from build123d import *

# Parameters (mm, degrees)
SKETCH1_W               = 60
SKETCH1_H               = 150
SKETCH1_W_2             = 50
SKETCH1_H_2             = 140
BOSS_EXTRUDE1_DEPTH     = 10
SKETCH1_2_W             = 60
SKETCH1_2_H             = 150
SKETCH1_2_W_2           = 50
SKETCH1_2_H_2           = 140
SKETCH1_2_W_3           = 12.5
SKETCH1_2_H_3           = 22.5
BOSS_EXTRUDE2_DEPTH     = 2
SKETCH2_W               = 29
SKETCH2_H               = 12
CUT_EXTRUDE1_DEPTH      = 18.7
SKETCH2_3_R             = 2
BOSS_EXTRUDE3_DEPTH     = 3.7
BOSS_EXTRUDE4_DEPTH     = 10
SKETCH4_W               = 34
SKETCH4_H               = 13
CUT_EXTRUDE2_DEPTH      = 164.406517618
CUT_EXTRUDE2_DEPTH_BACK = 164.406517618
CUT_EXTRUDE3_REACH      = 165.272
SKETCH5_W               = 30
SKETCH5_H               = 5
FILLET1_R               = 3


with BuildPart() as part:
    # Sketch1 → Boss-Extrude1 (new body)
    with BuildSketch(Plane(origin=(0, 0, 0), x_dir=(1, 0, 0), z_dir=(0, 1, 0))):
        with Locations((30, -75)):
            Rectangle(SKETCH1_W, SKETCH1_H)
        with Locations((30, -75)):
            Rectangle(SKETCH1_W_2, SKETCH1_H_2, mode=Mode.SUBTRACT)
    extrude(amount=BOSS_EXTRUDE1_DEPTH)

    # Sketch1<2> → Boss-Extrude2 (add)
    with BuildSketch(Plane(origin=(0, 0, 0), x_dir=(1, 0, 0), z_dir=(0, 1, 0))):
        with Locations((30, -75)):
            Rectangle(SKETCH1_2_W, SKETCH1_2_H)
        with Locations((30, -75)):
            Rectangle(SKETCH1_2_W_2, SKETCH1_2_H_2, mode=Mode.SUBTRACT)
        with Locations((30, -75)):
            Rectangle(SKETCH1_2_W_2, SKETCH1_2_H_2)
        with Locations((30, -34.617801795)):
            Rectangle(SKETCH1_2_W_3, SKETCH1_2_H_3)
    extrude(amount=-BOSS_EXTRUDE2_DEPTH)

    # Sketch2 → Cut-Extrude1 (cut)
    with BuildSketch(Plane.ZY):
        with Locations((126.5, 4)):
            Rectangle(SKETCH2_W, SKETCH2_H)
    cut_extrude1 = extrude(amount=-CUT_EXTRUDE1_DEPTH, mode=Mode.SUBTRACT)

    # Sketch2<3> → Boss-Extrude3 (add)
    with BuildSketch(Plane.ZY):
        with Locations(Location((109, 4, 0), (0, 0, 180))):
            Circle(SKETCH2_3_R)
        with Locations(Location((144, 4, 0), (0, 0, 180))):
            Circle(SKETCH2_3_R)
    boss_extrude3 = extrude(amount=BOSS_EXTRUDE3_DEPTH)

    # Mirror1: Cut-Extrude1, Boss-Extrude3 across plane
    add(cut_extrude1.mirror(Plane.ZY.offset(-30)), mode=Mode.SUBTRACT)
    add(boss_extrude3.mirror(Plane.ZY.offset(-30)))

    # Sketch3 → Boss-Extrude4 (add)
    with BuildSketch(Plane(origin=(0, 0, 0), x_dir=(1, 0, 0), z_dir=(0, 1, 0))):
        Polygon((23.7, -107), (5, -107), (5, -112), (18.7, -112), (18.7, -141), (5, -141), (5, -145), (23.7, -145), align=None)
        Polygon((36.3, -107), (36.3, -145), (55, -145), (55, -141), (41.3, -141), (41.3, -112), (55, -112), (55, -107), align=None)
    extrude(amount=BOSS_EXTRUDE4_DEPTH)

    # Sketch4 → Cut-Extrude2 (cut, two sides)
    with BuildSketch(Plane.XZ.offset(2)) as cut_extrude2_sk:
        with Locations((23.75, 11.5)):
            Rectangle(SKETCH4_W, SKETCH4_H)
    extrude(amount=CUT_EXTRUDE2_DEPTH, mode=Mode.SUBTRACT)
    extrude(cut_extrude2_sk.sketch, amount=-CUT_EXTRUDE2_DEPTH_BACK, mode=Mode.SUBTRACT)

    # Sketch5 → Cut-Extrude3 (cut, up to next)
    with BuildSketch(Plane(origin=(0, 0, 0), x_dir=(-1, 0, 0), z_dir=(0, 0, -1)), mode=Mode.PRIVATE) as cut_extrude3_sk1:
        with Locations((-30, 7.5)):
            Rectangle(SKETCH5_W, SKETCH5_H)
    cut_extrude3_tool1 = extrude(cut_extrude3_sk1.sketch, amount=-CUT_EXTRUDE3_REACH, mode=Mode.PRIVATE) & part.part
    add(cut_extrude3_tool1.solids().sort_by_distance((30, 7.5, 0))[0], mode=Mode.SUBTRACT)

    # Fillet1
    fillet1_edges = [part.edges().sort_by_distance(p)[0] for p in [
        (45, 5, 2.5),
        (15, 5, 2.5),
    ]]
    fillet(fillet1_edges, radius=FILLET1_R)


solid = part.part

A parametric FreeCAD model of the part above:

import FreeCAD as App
import Part
import Sketcher
Q = App.Units.Quantity


def edges_at(feature, points):
    """Names of the edges that pass closest to the given points."""
    edges = feature.Shape.Edges
    near = lambda p: min(range(len(edges)), key=lambda i: edges[i].distToShape(Part.Vertex(*p))[0])
    return sorted({f"Edge{near(p) + 1}" for p in points})

doc = App.newDocument("Part")
body = doc.addObject("PartDesign::Body", "Body")

# Sketch on XZ plane
sketch1 = body.newObject("Sketcher::SketchObject", "Sketch")
sketch1.AttachmentSupport = (doc.getObject("XZ_Plane"), [""])
sketch1.MapMode = "FlatFace"
sketch1.addGeometry([
    Part.LineSegment(App.Vector(0, 0, 0), App.Vector(0, 150, 0)),  # 0
    Part.LineSegment(App.Vector(0, 150, 0), App.Vector(60, 150, 0)),  # 1
    Part.LineSegment(App.Vector(60, 150, 0), App.Vector(60, 0, 0)),  # 2
    Part.LineSegment(App.Vector(60, 0, 0), App.Vector(0, 0, 0)),  # 3
    Part.LineSegment(App.Vector(55, 145, 0), App.Vector(5, 145, 0)),  # 4
    Part.LineSegment(App.Vector(5, 145, 0), App.Vector(5, 5, 0)),  # 5
    Part.LineSegment(App.Vector(5, 5, 0), App.Vector(55, 5, 0)),  # 6
    Part.LineSegment(App.Vector(55, 5, 0), App.Vector(55, 145, 0)),  # 7
], False)
sketch1.addConstraint([
    Sketcher.Constraint("Coincident", 0, 2, 1, 1),
    Sketcher.Constraint("Coincident", 1, 2, 2, 1),
    Sketcher.Constraint("Coincident", 2, 2, 3, 1),
    Sketcher.Constraint("Coincident", 3, 2, 0, 1),
    Sketcher.Constraint("Coincident", 4, 2, 5, 1),
    Sketcher.Constraint("Coincident", 5, 2, 6, 1),
    Sketcher.Constraint("Coincident", 6, 2, 7, 1),
    Sketcher.Constraint("Coincident", 7, 2, 4, 1),
    Sketcher.Constraint("Vertical", 0),
    Sketcher.Constraint("Horizontal", 1),
    Sketcher.Constraint("Vertical", 2),
    Sketcher.Constraint("Horizontal", 3),
    Sketcher.Constraint("Horizontal", 4),
    Sketcher.Constraint("Vertical", 5),
    Sketcher.Constraint("Horizontal", 6),
    Sketcher.Constraint("Vertical", 7),
    Sketcher.Constraint("Coincident", 3, 2, -1, 1),
    Sketcher.Constraint("DistanceX", 1, 1, 1, 2, Q("60 mm")),
    Sketcher.Constraint("DistanceX", 4, 2, 4, 1, Q("50 mm")),
    Sketcher.Constraint("DistanceY", 0, 1, 0, 2, Q("150 mm")),
    Sketcher.Constraint("DistanceY", 5, 2, 5, 1, Q("140 mm")),
    Sketcher.Constraint("DistanceX", -1, 1, 4, 2, Q("5 mm")),
    Sketcher.Constraint("DistanceY", -1, 1, 4, 2, Q("145 mm")),
])
pad1 = body.newObject("PartDesign::Pad", "Pad")
pad1.Profile = sketch1
pad1.Length = 10
pad1.Reversed = True

# Sketch on XZ plane
sketch2 = body.newObject("Sketcher::SketchObject", "Sketch001")
sketch2.AttachmentSupport = (doc.getObject("XZ_Plane"), [""])
sketch2.MapMode = "FlatFace"
sketch2.addGeometry([
    Part.LineSegment(App.Vector(0, 0, 0), App.Vector(0, 150, 0)),
    Part.LineSegment(App.Vector(0, 150, 0), App.Vector(60, 150, 0)),
    Part.LineSegment(App.Vector(60, 150, 0), App.Vector(60, 0, 0)),
    Part.LineSegment(App.Vector(60, 0, 0), App.Vector(0, 0, 0)),
], False)
sketch2.addConstraint([
    Sketcher.Constraint("Coincident", 0, 2, 1, 1),
    Sketcher.Constraint("Coincident", 1, 2, 2, 1),
    Sketcher.Constraint("Coincident", 2, 2, 3, 1),
    Sketcher.Constraint("Coincident", 3, 2, 0, 1),
    Sketcher.Constraint("Vertical", 0),
    Sketcher.Constraint("Horizontal", 1),
    Sketcher.Constraint("Vertical", 2),
    Sketcher.Constraint("Horizontal", 3),
    Sketcher.Constraint("Coincident", 3, 2, -1, 1),
    Sketcher.Constraint("DistanceX", 1, 1, 1, 2, Q("60 mm")),
    Sketcher.Constraint("DistanceY", 0, 1, 0, 2, Q("150 mm")),
])
pad2 = body.newObject("PartDesign::Pad", "Pad001")
pad2.Profile = sketch2
pad2.Length = 2

# Sketch on YZ plane
sketch3 = body.newObject("Sketcher::SketchObject", "Sketch002")
sketch3.AttachmentSupport = (doc.getObject("YZ_Plane"), [""])
sketch3.MapMode = "FlatFace"
sketch3.addGeometry([
    Part.LineSegment(App.Vector(10, 112, 0), App.Vector(-2, 112, 0)),
    Part.LineSegment(App.Vector(-2, 112, 0), App.Vector(-2, 141, 0)),
    Part.LineSegment(App.Vector(-2, 141, 0), App.Vector(10, 141, 0)),
    Part.LineSegment(App.Vector(10, 141, 0), App.Vector(10, 112, 0)),
], False)
sketch3.addConstraint([
    Sketcher.Constraint("Coincident", 0, 2, 1, 1),
    Sketcher.Constraint("Coincident", 1, 2, 2, 1),
    Sketcher.Constraint("Coincident", 2, 2, 3, 1),
    Sketcher.Constraint("Coincident", 3, 2, 0, 1),
    Sketcher.Constraint("Horizontal", 0),
    Sketcher.Constraint("Vertical", 1),
    Sketcher.Constraint("Horizontal", 2),
    Sketcher.Constraint("Vertical", 3),
    Sketcher.Constraint("DistanceX", 0, 2, 0, 1, Q("12 mm")),
    Sketcher.Constraint("DistanceY", 1, 1, 1, 2, Q("29 mm")),
    Sketcher.Constraint("DistanceX", 0, 2, -1, 1, Q("2 mm")),
    Sketcher.Constraint("DistanceY", -1, 1, 0, 2, Q("112 mm")),
])
pocket1 = body.newObject("PartDesign::Pocket", "Pocket")
pocket1.Profile = sketch3
pocket1.Length = 18.7
pocket1.Reversed = True

# Sketch on YZ plane
sketch4 = body.newObject("Sketcher::SketchObject", "Sketch003")
sketch4.AttachmentSupport = (doc.getObject("YZ_Plane"), [""])
sketch4.MapMode = "FlatFace"
sketch4.addGeometry([
    Part.Circle(App.Vector(4, 109, 0), App.Vector(0, 0, 1), 2),
    Part.Circle(App.Vector(4, 144, 0), App.Vector(0, 0, 1), 2),
], False)
sketch4.addConstraint([
    Sketcher.Constraint("Equal", 0, 1),
    Sketcher.Constraint("Vertical", 0, 3, 1, 3),
    Sketcher.Constraint("Diameter", 0, Q("4 mm")),
    Sketcher.Constraint("DistanceX", -1, 1, 0, 3, Q("4 mm")),
    Sketcher.Constraint("DistanceY", -1, 1, 0, 3, Q("109 mm")),
    Sketcher.Constraint("DistanceY", -1, 1, 1, 3, Q("144 mm")),
])
pad3 = body.newObject("PartDesign::Pad", "Pad002")
pad3.Profile = sketch4
pad3.Length = 3.7
pad3.Reversed = True
doc.recompute()

datumplane = body.newObject("PartDesign::Plane", "DatumPlane")
datumplane.AttachmentSupport = (doc.getObject("YZ_Plane"), [""])
datumplane.MapMode = "FlatFace"
datumplane.AttachmentOffset = App.Placement(App.Vector(0, 0, 30), App.Rotation())
mirrored = body.newObject("PartDesign::Mirrored", "Mirrored")
mirrored.Originals = [pocket1, pad3]
mirrored.MirrorPlane = (datumplane, [""])
body.Tip = mirrored

# Sketch on XZ plane
sketch5 = body.newObject("Sketcher::SketchObject", "Sketch004")
sketch5.AttachmentSupport = (doc.getObject("XZ_Plane"), [""])
sketch5.MapMode = "FlatFace"
sketch5.addGeometry([
    Part.LineSegment(App.Vector(23.7, 107, 0), App.Vector(5, 107, 0)),  # 0
    Part.LineSegment(App.Vector(5, 107, 0), App.Vector(5, 112, 0)),  # 1
    Part.LineSegment(App.Vector(5, 112, 0), App.Vector(18.7, 112, 0)),  # 2
    Part.LineSegment(App.Vector(18.7, 112, 0), App.Vector(18.7, 141, 0)),  # 3
    Part.LineSegment(App.Vector(18.7, 141, 0), App.Vector(5, 141, 0)),  # 4
    Part.LineSegment(App.Vector(5, 141, 0), App.Vector(5, 145, 0)),  # 5
    Part.LineSegment(App.Vector(5, 145, 0), App.Vector(23.7, 145, 0)),  # 6
    Part.LineSegment(App.Vector(23.7, 145, 0), App.Vector(23.7, 107, 0)),  # 7
    Part.LineSegment(App.Vector(36.3, 107, 0), App.Vector(36.3, 145, 0)),  # 8
    Part.LineSegment(App.Vector(36.3, 145, 0), App.Vector(55, 145, 0)),  # 9
    Part.LineSegment(App.Vector(55, 145, 0), App.Vector(55, 141, 0)),  # 10
    Part.LineSegment(App.Vector(55, 141, 0), App.Vector(41.3, 141, 0)),  # 11
    Part.LineSegment(App.Vector(41.3, 141, 0), App.Vector(41.3, 112, 0)),  # 12
    Part.LineSegment(App.Vector(41.3, 112, 0), App.Vector(55, 112, 0)),  # 13
    Part.LineSegment(App.Vector(55, 112, 0), App.Vector(55, 107, 0)),  # 14
    Part.LineSegment(App.Vector(55, 107, 0), App.Vector(36.3, 107, 0)),  # 15
], False)
sketch5.addConstraint([
    Sketcher.Constraint("Coincident", 0, 2, 1, 1),
    Sketcher.Constraint("Coincident", 1, 2, 2, 1),
    Sketcher.Constraint("Coincident", 2, 2, 3, 1),
    Sketcher.Constraint("Coincident", 3, 2, 4, 1),
    Sketcher.Constraint("Coincident", 4, 2, 5, 1),
    Sketcher.Constraint("Coincident", 5, 2, 6, 1),
    Sketcher.Constraint("Coincident", 6, 2, 7, 1),
    Sketcher.Constraint("Coincident", 7, 2, 0, 1),
    Sketcher.Constraint("Coincident", 8, 2, 9, 1),
    Sketcher.Constraint("Coincident", 9, 2, 10, 1),
    Sketcher.Constraint("Coincident", 10, 2, 11, 1),
    Sketcher.Constraint("Coincident", 11, 2, 12, 1),
    Sketcher.Constraint("Coincident", 12, 2, 13, 1),
    Sketcher.Constraint("Coincident", 13, 2, 14, 1),
    Sketcher.Constraint("Coincident", 14, 2, 15, 1),
    Sketcher.Constraint("Coincident", 15, 2, 8, 1),
    Sketcher.Constraint("Horizontal", 0),
    Sketcher.Constraint("Vertical", 1),
    Sketcher.Constraint("Horizontal", 2),
    Sketcher.Constraint("Vertical", 3),
    Sketcher.Constraint("Horizontal", 4),
    Sketcher.Constraint("Vertical", 5),
    Sketcher.Constraint("Horizontal", 6),
    Sketcher.Constraint("Vertical", 7),
    Sketcher.Constraint("Vertical", 8),
    Sketcher.Constraint("Horizontal", 9),
    Sketcher.Constraint("Vertical", 10),
    Sketcher.Constraint("Horizontal", 11),
    Sketcher.Constraint("Vertical", 12),
    Sketcher.Constraint("Horizontal", 13),
    Sketcher.Constraint("Vertical", 14),
    Sketcher.Constraint("Horizontal", 15),
    Sketcher.Constraint("Horizontal", 6, 2, 8, 2),
    Sketcher.Constraint("Horizontal", 4, 2, 10, 2),
    Sketcher.Constraint("Horizontal", 2, 2, 12, 2),
    Sketcher.Constraint("Horizontal", 7, 2, 14, 2),
    Sketcher.Constraint("Vertical", 1, 2, 4, 2),
    Sketcher.Constraint("Vertical", 10, 2, 13, 2),
    Sketcher.Constraint("Equal", 6, 9),
    Sketcher.Constraint("Equal", 4, 11),
    Sketcher.Constraint("DistanceY", 1, 1, 1, 2, Q("5 mm")),
    Sketcher.Constraint("DistanceY", 3, 1, 3, 2, Q("29 mm")),
    Sketcher.Constraint("DistanceY", 5, 1, 5, 2, Q("4 mm")),
    Sketcher.Constraint("DistanceX", 0, 2, 0, 1, Q("18.7 mm")),
    Sketcher.Constraint("DistanceX", 2, 1, 2, 2, Q("13.7 mm")),
    Sketcher.Constraint("DistanceX", -1, 1, 0, 2, Q("5 mm")),
    Sketcher.Constraint("DistanceY", -1, 1, 0, 2, Q("107 mm")),
    Sketcher.Constraint("DistanceX", -1, 1, 9, 2, Q("55 mm")),
])
pad4 = body.newObject("PartDesign::Pad", "Pad003")
pad4.Profile = sketch5
pad4.Length = 10
pad4.Reversed = True

# Sketch on XZ plane
sketch6 = body.newObject("Sketcher::SketchObject", "Sketch005")
sketch6.AttachmentSupport = (doc.getObject("XZ_Plane"), [""])
sketch6.MapMode = "FlatFace"
sketch6.AttachmentOffset = App.Placement(App.Vector(0, 0, 2), App.Rotation())
sketch6.addGeometry([
    Part.LineSegment(App.Vector(6.75, 18, 0), App.Vector(6.75, 5, 0)),
    Part.LineSegment(App.Vector(6.75, 5, 0), App.Vector(40.75, 5, 0)),
    Part.LineSegment(App.Vector(40.75, 5, 0), App.Vector(40.75, 18, 0)),
    Part.LineSegment(App.Vector(40.75, 18, 0), App.Vector(6.75, 18, 0)),
], False)
sketch6.addConstraint([
    Sketcher.Constraint("Coincident", 0, 2, 1, 1),
    Sketcher.Constraint("Coincident", 1, 2, 2, 1),
    Sketcher.Constraint("Coincident", 2, 2, 3, 1),
    Sketcher.Constraint("Coincident", 3, 2, 0, 1),
    Sketcher.Constraint("Vertical", 0),
    Sketcher.Constraint("Horizontal", 1),
    Sketcher.Constraint("Vertical", 2),
    Sketcher.Constraint("Horizontal", 3),
    Sketcher.Constraint("DistanceX", 1, 1, 1, 2, Q("34 mm")),
    Sketcher.Constraint("DistanceY", 0, 2, 0, 1, Q("13 mm")),
    Sketcher.Constraint("DistanceY", -1, 1, 0, 2, Q("5 mm")),
    Sketcher.Constraint("DistanceX", -1, 1, 0, 2, Q("6.75 mm")),
])
pocket2 = body.newObject("PartDesign::Pocket", "Pocket001")
pocket2.Profile = sketch6
pocket2.Type = "ThroughAll"
pocket2.Midplane = True

# Sketch on XY plane
sketch7 = body.newObject("Sketcher::SketchObject", "Sketch006")
sketch7.AttachmentSupport = (doc.getObject("XY_Plane"), [""])
sketch7.MapMode = "FlatFace"
sketch7.addGeometry([
    Part.LineSegment(App.Vector(45, 10, 0), App.Vector(45, 5, 0)),
    Part.LineSegment(App.Vector(45, 5, 0), App.Vector(15, 5, 0)),
    Part.LineSegment(App.Vector(15, 5, 0), App.Vector(15, 10, 0)),
    Part.LineSegment(App.Vector(15, 10, 0), App.Vector(45, 10, 0)),
], False)
sketch7.addConstraint([
    Sketcher.Constraint("Coincident", 0, 2, 1, 1),
    Sketcher.Constraint("Coincident", 1, 2, 2, 1),
    Sketcher.Constraint("Coincident", 2, 2, 3, 1),
    Sketcher.Constraint("Coincident", 3, 2, 0, 1),
    Sketcher.Constraint("Vertical", 0),
    Sketcher.Constraint("Horizontal", 1),
    Sketcher.Constraint("Vertical", 2),
    Sketcher.Constraint("Horizontal", 3),
    Sketcher.Constraint("DistanceX", 1, 2, 1, 1, Q("30 mm")),
    Sketcher.Constraint("DistanceY", 0, 2, 0, 1, Q("5 mm")),
    Sketcher.Constraint("DistanceX", -1, 1, 0, 2, Q("45 mm")),
    Sketcher.Constraint("DistanceY", -1, 1, 0, 2, Q("5 mm")),
])
pocket3 = body.newObject("PartDesign::Pocket", "Pocket002")
pocket3.Profile = sketch7
pocket3.Type = "UpToFirst"
pocket3.Reversed = True
doc.recompute()

fillet = body.newObject("PartDesign::Fillet", "Fillet")
fillet.Base = (pocket3, edges_at(pocket3, [(45, 5, 2.5), (15, 5, 2.5)]))
fillet.Radius = 3

doc.recompute()
